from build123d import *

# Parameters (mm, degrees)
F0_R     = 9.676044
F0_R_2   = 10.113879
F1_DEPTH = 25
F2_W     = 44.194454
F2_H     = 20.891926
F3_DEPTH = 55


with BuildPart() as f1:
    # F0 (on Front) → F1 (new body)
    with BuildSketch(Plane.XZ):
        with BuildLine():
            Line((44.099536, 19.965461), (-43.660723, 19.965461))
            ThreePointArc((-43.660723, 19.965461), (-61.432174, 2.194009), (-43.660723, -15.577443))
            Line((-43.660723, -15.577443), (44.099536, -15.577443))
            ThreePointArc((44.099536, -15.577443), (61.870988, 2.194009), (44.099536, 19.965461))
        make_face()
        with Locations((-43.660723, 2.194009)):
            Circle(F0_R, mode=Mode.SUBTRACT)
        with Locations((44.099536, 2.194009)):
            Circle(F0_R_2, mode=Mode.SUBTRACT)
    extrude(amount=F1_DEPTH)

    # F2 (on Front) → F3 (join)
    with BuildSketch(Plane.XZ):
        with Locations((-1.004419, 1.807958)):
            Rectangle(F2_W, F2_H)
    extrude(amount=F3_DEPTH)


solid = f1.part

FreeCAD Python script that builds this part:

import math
import FreeCAD as App
import Part
import Sketcher

V = App.Vector


def add_polygon(sketch, points):
    """Adds a closed chain of lines whose ends are joined by coincident constraints."""
    first, n = sketch.GeometryCount, len(points)
    for a, b in zip(points, points[1:] + points[:1]):
        sketch.addGeometry(Part.LineSegment(App.Vector(*a, 0), App.Vector(*b, 0)), False)
    for i in range(n):
        sketch.addConstraint(Sketcher.Constraint("Coincident", first + i, 2, first + (i + 1) % n, 1))

doc = App.newDocument("Part")
params = doc.addObject("Spreadsheet::Sheet", "Params")
for row, (alias, value) in enumerate([
    ("pad1_length", "25 mm"),
    ("pad2_length", "55 mm"),
], start=1):
    params.set(f"A{row}", alias)
    params.set(f"B{row}", "=" + value)
    params.setAlias(f"B{row}", alias)

body = doc.addObject("PartDesign::Body", "Body")

# Sketch on XZ plane
sketch1 = body.newObject("Sketcher::SketchObject", "Sketch")
sketch1.AttachmentSupport = (doc.getObject("XZ_Plane"), [""])
sketch1.MapMode = "FlatFace"
sketch1.addGeometry([
    Part.LineSegment(V(44, 20, 0), V(-44, 20, 0)),  # 0
    Part.ArcOfCircle(Part.Circle(V(-44, 2, 0), V(0, 0, 1), 18), math.radians(90), math.radians(270)),  # 1
    Part.LineSegment(V(-44, -16, 0), V(44, -16, 0)),  # 2
    Part.ArcOfCircle(Part.Circle(V(44, 2, 0), V(0, 0, 1), 18), math.radians(-90), math.radians(90)),  # 3
    Part.Circle(V(-44, 2, 0), V(0, 0, 1), 10),  # 4
    Part.Circle(V(44, 2, 0), V(0, 0, 1), 10),  # 5
], False)
sketch1.addConstraint([
    Sketcher.Constraint("Tangent", 0, 2, 1, 1),
    Sketcher.Constraint("Tangent", 1, 2, 2, 1),
    Sketcher.Constraint("Tangent", 2, 2, 3, 1),
    Sketcher.Constraint("Tangent", 3, 2, 0, 1),
    Sketcher.Constraint("Horizontal", 0),
    Sketcher.Constraint("Horizontal", 2),
    Sketcher.Constraint("Coincident", 4, 3, 1, 3),
    Sketcher.Constraint("Coincident", 5, 3, 3, 3),
    Sketcher.Constraint("Diameter", 5, 20.227758),
    Sketcher.Constraint("Radius", 1, 17.771452),
    Sketcher.Constraint("Diameter", 4, 19.352088),
    Sketcher.Constraint("DistanceX", 0, 2, 0, 1, 87.760259),
    Sketcher.Constraint("DistanceY", -1, 1, 1, 3, 2.194009),
    Sketcher.Constraint("DistanceX", 1, 3, -1, 1, 43.660722),
])
pad1 = body.newObject("PartDesign::Pad", "Pad")
pad1.Profile = sketch1
pad1.setExpression("Length", "Params.pad1_length")

# Sketch on XZ plane
sketch2 = body.newObject("Sketcher::SketchObject", "Sketch001")
sketch2.AttachmentSupport = (doc.getObject("XZ_Plane"), [""])
sketch2.MapMode = "FlatFace"
add_polygon(sketch2, [(-23, 12), (-23, -9), (21, -9), (21, 12)])  # lines 0-3
sketch2.addConstraint([
    Sketcher.Constraint("Vertical", 0),
    Sketcher.Constraint("Horizontal", 1),
    Sketcher.Constraint("Vertical", 2),
    Sketcher.Constraint("Horizontal", 3),
    Sketcher.Constraint("DistanceX", 1, 1, 1, 2, 44.194454),
    Sketcher.Constraint("DistanceY", 0, 2, 0, 1, 20.891926),
    Sketcher.Constraint("DistanceX", -1, 1, 1, 2, 21.092808),
    Sketcher.Constraint("DistanceY", -1, 1, 2, 2, 12.253921),
])
pad2 = body.newObject("PartDesign::Pad", "Pad001")
pad2.Profile = sketch2
pad2.setExpression("Length", "Params.pad2_length")

doc.recompute()
